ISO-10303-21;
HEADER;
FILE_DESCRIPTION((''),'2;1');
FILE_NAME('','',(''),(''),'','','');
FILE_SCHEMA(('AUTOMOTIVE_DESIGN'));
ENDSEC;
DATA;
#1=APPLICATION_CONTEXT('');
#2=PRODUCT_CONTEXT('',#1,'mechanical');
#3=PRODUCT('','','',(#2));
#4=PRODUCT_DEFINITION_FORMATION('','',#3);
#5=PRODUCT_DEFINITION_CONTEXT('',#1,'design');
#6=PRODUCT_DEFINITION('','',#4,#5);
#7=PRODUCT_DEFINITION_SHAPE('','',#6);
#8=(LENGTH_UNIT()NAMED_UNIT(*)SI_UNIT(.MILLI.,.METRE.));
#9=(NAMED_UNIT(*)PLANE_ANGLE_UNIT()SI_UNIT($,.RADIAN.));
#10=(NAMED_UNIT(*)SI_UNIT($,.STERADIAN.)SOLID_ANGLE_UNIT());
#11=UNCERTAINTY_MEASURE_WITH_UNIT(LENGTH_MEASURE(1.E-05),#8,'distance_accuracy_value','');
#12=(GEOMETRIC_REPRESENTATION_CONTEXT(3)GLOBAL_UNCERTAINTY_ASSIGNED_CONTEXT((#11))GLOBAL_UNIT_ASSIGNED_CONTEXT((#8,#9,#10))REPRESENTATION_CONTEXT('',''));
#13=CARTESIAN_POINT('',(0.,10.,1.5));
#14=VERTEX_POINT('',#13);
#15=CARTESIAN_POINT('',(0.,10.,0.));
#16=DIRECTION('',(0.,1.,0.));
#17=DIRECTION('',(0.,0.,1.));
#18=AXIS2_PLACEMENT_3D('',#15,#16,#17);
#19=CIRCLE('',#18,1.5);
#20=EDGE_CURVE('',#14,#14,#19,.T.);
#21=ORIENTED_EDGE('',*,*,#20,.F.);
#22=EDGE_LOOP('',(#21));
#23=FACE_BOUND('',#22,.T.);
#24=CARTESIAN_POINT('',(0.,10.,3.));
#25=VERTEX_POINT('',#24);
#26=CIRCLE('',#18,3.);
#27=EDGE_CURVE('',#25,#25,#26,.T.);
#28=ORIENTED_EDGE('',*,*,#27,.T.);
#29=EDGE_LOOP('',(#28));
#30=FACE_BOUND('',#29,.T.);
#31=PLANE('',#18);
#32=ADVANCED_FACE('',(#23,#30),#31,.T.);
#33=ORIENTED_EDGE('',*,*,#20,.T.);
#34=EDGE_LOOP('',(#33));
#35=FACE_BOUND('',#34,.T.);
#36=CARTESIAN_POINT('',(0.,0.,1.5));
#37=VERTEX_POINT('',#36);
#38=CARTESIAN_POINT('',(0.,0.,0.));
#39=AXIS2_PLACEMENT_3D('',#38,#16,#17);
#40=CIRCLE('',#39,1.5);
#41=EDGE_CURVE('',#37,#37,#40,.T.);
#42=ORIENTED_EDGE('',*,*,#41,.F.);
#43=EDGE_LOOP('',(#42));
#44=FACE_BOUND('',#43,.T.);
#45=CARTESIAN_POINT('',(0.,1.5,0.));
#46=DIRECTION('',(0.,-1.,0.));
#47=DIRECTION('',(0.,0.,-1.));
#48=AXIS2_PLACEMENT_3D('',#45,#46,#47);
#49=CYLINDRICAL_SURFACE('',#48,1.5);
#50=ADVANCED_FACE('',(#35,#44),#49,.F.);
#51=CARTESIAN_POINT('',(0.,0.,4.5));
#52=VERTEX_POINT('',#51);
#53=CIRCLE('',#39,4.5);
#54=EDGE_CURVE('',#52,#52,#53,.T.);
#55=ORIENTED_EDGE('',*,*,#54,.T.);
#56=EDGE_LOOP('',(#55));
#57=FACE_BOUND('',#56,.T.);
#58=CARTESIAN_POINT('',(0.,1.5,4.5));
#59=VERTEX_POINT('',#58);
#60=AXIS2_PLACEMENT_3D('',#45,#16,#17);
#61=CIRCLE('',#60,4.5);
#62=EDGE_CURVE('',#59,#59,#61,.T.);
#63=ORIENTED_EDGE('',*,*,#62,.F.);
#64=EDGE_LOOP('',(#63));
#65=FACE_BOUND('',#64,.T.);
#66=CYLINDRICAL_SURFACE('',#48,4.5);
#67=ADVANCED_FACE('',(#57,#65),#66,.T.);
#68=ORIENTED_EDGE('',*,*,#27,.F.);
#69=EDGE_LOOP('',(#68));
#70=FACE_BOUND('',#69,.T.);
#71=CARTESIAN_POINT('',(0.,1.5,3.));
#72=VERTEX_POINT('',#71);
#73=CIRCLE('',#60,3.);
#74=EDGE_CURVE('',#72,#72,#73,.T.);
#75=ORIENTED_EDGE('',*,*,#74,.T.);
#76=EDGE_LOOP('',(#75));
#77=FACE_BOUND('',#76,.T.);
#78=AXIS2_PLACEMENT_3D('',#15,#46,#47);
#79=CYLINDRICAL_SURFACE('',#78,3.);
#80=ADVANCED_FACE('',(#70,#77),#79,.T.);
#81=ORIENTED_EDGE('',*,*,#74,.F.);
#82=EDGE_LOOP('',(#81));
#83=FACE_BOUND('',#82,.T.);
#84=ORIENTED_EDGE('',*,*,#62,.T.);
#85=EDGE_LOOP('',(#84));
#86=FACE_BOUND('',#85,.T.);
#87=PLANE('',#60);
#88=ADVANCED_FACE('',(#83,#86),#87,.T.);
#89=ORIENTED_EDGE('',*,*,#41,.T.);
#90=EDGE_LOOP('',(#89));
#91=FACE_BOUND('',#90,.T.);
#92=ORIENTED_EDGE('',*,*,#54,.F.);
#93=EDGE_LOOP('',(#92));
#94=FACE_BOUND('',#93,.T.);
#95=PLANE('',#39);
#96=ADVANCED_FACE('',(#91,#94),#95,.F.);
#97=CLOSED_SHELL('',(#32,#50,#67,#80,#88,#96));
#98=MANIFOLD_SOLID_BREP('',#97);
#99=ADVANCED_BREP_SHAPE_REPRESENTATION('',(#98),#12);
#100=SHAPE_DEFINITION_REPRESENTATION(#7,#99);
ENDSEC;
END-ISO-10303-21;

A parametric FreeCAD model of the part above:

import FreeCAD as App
import Part
import Sketcher
Q = App.Units.Quantity

doc = App.newDocument("Part")
body = doc.addObject("PartDesign::Body", "Body")

sketch1 = body.newObject("Sketcher::SketchObject", "Sketch")
sketch1.AttachmentSupport = (doc.getObject("XZ_Plane"), [""])
sketch1.MapMode = "FlatFace"
sketch1.addGeometry(Part.Circle(App.Vector(0, 0, 0), App.Vector(0, 0, 1), 4.5), False)
sketch1.addGeometry(Part.Circle(App.Vector(0, 0, 0), App.Vector(0, 0, 1), 1.5), False)
sketch1.addConstraint(Sketcher.Constraint("Coincident", 0, 3, -1, 1))
sketch1.addConstraint(Sketcher.Constraint("Coincident", 1, 3, -1, 1))
sketch1.addConstraint(Sketcher.Constraint("Diameter", 0, Q("9 mm")))
sketch1.addConstraint(Sketcher.Constraint("Diameter", 1, Q("3 mm")))
pad1 = body.newObject("PartDesign::Pad", "Pad")
pad1.Profile = sketch1
pad1.Length = 1.5
pad1.Reversed = True

sketch2 = body.newObject("Sketcher::SketchObject", "Sketch001")
sketch2.AttachmentSupport = (doc.getObject("XZ_Plane"), [""])
sketch2.MapMode = "FlatFace"
sketch2.AttachmentOffset = App.Placement(App.Vector(0, 0, -1.5), App.Rotation())
sketch2.addGeometry(Part.Circle(App.Vector(0, 0, 0), App.Vector(0, 0, 1), 3), False)
sketch2.addGeometry(Part.Circle(App.Vector(0, 0, 0), App.Vector(0, 0, 1), 1.5), False)
sketch2.addConstraint(Sketcher.Constraint("Coincident", 0, 3, -1, 1))
sketch2.addConstraint(Sketcher.Constraint("Coincident", 1, 3, -1, 1))
sketch2.addConstraint(Sketcher.Constraint("Diameter", 0, Q("6 mm")))
sketch2.addConstraint(Sketcher.Constraint("Diameter", 1, Q("3 mm")))
pad2 = body.newObject("PartDesign::Pad", "Pad001")
pad2.Profile = sketch2
pad2.Length = 8.5
pad2.Reversed = True

doc.recompute()
